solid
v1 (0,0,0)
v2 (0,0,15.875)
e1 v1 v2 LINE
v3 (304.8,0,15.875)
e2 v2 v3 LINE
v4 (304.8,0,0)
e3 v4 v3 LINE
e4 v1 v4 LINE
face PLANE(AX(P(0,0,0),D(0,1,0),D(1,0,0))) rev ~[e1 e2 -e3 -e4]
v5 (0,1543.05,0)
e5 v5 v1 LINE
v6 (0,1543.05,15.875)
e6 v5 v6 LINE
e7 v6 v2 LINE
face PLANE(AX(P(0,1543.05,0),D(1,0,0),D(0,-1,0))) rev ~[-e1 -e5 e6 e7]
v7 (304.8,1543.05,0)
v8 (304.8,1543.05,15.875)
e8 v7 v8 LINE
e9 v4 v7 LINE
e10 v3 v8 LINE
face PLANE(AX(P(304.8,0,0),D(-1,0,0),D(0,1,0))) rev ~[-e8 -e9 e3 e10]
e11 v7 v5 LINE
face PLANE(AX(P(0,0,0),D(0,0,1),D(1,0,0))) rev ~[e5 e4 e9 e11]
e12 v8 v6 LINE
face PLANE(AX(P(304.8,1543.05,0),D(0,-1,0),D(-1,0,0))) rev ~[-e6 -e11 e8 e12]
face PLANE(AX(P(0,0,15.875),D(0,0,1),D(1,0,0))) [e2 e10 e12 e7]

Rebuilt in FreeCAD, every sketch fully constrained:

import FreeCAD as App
import Part
import Sketcher

V = App.Vector
Q = App.Units.Quantity


def add_polygon(sketch, points):
    """Adds a closed chain of lines whose ends are joined by coincident constraints."""
    first, n = sketch.GeometryCount, len(points)
    for a, b in zip(points, points[1:] + points[:1]):
        sketch.addGeometry(Part.LineSegment(App.Vector(*a, 0), App.Vector(*b, 0)), False)
    for i in range(n):
        sketch.addConstraint(Sketcher.Constraint("Coincident", first + i, 2, first + (i + 1) % n, 1))

doc = App.newDocument("Part")
body = doc.addObject("PartDesign::Body", "Body")

sketch1 = body.newObject("Sketcher::SketchObject", "Sketch")
sketch1.AttachmentSupport = (doc.getObject("XY_Plane"), [""])
sketch1.MapMode = "FlatFace"
add_polygon(sketch1, [(0, 1543), (0, 0), (305, 0), (305, 1543)])
sketch1.addConstraint(Sketcher.Constraint("Vertical", 0))
sketch1.addConstraint(Sketcher.Constraint("Horizontal", 1))
sketch1.addConstraint(Sketcher.Constraint("Vertical", 2))
sketch1.addConstraint(Sketcher.Constraint("Horizontal", 3))
sketch1.addConstraint(Sketcher.Constraint("Coincident", 0, 2, -1, 1))
sketch1.addConstraint(Sketcher.Constraint("DistanceX", 1, 1, 1, 2, Q("12 in")))
sketch1.addConstraint(Sketcher.Constraint("DistanceY", 0, 2, 0, 1, Q("60.75 in")))
pad1 = body.newObject("PartDesign::Pad", "Pad")
pad1.Profile = sketch1
pad1.Length = Q("0.625 in")

doc.recompute()
